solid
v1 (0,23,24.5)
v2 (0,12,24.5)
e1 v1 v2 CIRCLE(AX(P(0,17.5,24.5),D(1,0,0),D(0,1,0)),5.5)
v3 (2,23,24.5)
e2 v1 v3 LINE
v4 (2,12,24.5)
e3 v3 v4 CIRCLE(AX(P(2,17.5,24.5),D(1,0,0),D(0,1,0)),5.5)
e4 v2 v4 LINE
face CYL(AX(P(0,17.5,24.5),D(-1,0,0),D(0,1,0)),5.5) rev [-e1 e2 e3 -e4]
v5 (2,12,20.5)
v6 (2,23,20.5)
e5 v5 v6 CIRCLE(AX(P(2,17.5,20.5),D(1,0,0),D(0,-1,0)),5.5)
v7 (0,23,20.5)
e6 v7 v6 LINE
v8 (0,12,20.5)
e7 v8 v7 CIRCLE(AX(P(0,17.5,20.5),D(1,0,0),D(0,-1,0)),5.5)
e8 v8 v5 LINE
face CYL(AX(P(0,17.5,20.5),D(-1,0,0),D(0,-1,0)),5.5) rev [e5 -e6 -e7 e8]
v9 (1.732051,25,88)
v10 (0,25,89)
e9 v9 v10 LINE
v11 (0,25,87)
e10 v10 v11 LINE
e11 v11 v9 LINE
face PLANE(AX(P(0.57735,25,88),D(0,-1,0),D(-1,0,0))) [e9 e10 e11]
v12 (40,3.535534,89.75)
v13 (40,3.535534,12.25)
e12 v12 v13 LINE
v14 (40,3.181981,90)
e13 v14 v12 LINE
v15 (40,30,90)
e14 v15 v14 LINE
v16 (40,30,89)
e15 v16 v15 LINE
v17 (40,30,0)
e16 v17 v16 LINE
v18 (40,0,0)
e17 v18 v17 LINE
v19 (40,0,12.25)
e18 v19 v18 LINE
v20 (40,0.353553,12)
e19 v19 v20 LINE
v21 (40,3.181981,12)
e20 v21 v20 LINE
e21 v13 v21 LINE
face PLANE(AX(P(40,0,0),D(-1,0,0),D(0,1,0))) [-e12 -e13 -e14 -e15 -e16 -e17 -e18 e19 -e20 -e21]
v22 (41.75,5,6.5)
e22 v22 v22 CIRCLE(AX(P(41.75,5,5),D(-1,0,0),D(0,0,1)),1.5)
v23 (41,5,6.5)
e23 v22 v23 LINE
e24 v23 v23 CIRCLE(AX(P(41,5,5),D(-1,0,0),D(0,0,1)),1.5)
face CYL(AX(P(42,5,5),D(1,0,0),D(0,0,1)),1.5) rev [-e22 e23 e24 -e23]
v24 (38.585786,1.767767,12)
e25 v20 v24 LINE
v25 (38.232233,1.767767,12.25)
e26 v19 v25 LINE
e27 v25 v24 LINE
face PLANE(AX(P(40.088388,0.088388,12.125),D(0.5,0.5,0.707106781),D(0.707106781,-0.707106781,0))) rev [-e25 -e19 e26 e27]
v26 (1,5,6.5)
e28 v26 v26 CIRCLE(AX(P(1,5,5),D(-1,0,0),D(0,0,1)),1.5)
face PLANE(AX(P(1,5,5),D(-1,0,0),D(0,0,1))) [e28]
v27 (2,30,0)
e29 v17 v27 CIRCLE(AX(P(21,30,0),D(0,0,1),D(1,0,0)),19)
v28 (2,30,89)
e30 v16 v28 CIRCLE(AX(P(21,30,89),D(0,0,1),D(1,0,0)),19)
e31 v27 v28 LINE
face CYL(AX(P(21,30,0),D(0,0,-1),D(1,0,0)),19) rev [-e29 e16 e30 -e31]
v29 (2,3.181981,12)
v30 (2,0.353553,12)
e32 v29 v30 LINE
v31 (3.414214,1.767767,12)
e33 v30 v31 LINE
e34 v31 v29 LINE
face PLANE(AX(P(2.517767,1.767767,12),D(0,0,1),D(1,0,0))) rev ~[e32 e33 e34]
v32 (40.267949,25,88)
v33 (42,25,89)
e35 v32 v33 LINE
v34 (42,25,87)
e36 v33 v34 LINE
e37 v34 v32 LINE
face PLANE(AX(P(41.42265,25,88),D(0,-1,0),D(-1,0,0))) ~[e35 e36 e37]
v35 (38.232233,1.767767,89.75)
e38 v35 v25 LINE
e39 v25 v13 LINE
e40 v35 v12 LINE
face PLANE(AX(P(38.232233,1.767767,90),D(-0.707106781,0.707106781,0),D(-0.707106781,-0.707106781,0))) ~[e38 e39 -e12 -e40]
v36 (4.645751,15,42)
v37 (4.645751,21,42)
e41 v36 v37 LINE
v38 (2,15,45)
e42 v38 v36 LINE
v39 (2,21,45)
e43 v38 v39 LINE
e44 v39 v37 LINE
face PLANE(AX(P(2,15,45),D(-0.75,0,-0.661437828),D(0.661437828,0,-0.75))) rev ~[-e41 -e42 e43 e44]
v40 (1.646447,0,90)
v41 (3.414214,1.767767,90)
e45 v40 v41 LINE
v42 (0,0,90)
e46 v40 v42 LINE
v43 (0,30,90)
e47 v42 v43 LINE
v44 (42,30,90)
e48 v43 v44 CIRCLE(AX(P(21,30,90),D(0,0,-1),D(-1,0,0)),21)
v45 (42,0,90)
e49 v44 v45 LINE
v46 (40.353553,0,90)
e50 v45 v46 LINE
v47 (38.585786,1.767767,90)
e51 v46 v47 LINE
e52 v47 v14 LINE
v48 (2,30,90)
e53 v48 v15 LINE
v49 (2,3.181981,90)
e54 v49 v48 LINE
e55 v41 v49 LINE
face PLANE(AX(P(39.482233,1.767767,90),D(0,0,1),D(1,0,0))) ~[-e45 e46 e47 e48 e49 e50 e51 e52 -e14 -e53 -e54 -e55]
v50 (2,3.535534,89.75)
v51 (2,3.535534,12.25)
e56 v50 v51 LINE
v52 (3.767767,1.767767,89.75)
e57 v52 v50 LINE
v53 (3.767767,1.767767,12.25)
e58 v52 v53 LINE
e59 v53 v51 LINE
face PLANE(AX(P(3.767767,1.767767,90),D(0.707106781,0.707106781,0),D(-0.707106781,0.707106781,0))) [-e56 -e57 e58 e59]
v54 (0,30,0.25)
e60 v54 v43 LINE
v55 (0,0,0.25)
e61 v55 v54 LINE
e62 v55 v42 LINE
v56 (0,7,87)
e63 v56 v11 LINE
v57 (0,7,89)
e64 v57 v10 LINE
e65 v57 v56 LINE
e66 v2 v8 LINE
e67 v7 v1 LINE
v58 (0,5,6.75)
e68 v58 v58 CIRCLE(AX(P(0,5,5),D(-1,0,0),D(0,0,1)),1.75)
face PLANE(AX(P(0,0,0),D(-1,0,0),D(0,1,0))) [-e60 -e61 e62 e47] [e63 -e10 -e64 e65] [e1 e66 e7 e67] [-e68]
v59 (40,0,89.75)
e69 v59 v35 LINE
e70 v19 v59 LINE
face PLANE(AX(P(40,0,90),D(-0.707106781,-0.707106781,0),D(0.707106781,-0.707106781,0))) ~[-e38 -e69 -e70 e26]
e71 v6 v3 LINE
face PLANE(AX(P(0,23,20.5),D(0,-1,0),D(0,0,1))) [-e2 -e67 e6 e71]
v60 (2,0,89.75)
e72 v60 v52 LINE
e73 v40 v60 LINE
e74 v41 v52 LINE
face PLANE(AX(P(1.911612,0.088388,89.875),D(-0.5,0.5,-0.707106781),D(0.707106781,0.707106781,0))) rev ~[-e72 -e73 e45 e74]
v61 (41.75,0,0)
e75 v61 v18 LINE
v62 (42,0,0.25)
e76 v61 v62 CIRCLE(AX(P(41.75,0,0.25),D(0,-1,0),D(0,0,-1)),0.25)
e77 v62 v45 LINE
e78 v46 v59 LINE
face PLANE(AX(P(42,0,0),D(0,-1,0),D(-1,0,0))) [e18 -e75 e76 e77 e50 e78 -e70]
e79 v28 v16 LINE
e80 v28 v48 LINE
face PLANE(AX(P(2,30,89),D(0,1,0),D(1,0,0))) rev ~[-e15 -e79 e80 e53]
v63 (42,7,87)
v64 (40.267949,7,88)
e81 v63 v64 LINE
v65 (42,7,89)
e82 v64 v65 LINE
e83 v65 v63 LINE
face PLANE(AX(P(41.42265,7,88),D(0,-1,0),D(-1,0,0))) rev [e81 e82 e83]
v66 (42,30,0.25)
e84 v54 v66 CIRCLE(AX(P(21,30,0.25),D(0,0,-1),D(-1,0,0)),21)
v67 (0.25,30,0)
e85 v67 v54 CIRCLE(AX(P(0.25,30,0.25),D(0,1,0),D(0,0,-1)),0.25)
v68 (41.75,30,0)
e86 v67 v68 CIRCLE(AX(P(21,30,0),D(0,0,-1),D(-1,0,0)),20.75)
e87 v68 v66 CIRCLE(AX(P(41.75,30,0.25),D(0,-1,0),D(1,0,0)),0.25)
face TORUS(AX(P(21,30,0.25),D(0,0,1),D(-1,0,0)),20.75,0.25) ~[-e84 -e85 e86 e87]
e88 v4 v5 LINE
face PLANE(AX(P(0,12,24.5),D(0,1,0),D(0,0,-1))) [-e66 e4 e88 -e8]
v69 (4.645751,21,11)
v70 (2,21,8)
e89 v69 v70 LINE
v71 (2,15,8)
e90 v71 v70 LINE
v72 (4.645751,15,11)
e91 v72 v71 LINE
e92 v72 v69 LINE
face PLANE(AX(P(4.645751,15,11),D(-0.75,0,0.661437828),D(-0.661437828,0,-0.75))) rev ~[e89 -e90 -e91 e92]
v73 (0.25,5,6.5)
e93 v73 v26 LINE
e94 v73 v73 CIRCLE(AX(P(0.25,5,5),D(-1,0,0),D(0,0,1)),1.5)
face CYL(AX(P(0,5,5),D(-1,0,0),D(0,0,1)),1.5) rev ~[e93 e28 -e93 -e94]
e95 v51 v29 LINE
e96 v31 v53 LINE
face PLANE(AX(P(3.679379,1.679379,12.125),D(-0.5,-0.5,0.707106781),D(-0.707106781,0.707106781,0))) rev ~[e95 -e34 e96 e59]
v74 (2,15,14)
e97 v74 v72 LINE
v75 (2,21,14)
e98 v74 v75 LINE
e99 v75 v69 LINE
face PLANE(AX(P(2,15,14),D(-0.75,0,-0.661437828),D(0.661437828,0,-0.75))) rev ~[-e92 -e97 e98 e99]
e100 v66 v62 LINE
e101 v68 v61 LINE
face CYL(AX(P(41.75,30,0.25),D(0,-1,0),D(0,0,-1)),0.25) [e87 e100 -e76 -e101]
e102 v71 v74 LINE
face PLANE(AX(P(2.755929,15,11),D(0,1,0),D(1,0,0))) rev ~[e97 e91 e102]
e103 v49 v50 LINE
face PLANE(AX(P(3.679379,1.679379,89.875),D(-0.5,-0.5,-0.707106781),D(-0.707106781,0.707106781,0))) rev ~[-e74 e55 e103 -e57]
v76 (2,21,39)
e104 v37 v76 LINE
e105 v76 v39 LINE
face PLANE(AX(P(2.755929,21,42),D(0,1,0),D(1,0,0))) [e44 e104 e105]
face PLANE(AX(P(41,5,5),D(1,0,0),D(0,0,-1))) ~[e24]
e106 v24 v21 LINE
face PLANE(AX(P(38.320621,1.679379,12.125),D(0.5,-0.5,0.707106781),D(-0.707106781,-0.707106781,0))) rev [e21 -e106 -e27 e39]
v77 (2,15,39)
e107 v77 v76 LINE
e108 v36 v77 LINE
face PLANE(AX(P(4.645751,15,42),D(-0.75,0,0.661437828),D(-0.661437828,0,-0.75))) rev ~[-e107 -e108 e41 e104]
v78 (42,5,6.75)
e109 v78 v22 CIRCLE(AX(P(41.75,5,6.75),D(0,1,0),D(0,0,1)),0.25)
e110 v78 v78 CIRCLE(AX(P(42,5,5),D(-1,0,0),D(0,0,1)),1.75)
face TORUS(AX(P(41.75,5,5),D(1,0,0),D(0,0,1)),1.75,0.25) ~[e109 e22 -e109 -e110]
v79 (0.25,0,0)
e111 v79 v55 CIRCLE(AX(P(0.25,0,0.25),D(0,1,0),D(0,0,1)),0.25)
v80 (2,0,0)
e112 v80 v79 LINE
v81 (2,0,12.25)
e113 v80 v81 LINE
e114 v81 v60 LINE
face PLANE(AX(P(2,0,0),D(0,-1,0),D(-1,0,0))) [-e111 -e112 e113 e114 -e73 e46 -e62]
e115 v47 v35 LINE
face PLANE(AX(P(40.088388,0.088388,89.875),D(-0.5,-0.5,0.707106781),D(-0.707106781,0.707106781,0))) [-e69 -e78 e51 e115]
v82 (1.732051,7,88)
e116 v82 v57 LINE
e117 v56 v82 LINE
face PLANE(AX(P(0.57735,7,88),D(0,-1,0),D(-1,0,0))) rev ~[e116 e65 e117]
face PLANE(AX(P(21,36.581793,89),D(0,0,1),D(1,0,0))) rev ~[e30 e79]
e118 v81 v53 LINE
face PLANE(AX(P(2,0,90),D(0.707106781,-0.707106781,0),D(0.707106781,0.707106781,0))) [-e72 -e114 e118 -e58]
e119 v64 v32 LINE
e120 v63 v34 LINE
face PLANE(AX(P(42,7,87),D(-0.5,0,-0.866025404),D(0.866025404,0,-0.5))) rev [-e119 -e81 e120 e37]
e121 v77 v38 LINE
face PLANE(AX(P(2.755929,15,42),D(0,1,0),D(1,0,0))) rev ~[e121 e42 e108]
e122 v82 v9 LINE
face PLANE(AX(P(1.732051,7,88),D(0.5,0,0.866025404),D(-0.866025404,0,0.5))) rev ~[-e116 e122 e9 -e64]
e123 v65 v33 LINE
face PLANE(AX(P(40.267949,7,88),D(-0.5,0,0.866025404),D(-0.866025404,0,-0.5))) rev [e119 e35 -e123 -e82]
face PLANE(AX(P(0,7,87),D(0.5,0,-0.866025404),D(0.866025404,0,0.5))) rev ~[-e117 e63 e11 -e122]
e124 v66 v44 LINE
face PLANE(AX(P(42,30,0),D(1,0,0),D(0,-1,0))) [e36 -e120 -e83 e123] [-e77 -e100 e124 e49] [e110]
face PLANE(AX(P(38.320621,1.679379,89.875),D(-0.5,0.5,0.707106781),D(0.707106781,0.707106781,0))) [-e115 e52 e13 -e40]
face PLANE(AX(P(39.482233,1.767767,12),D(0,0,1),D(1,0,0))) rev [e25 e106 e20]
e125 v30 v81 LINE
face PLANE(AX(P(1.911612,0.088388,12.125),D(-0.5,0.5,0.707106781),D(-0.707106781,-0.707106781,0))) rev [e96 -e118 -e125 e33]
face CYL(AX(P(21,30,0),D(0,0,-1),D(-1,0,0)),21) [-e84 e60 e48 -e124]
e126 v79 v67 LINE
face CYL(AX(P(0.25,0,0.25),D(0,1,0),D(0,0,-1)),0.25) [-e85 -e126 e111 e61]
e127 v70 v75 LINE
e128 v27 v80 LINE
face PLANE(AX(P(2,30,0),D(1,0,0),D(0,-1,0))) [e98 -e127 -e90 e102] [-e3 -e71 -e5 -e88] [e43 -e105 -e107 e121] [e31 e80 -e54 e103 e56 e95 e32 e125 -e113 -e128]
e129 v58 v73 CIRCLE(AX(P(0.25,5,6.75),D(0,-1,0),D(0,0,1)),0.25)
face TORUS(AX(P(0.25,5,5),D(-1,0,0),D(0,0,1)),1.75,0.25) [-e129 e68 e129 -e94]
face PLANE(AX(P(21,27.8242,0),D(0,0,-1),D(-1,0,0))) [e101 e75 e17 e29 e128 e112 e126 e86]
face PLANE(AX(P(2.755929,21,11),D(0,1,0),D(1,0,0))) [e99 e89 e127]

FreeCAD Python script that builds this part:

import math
import FreeCAD as App
import Part
import Sketcher

V = App.Vector
Q = App.Units.Quantity


def edges_at(feature, points):
    """Names of the edges that pass closest to the given points."""
    edges = feature.Shape.Edges
    near = lambda p: min(range(len(edges)), key=lambda i: edges[i].distToShape(Part.Vertex(*p))[0])
    return sorted({f"Edge{near(p) + 1}" for p in points})

doc = App.newDocument("Part")
params = doc.addObject("Spreadsheet::Sheet", "Params")
for row, (alias, value) in enumerate([
    ("sketch1_radius", "19 mm"),
    ("sketch1_radius2", "21 mm"),
    ("sketch1_height", "30 mm"),
    ("pad1_length", "90 mm"),
    ("sketch2_radius", "19 mm"),
    ("pad2_length", "1 mm"),
    ("sketch3_radius", "5.5 mm"),
    ("sketch3_height", "4 mm"),
    ("pocket1_length", "2 mm"),
    ("sketch4_diameter", "3 mm"),
    ("pocket2_length", "1 mm"),
    ("sketch5_height", "2 mm"),
    ("pocket3_length", "18 mm"),
    ("sketch6_length", "2.5 mm"),
    ("pad3_length", "78 mm"),
    ("sketch7_height", "6 mm"),
    ("sketch7_length", "4 mm"),
    ("pad4_length", "6 mm"),
    ("fillet_radius", "0.25 mm"),
    ("chamfer_size", "0.25 mm"),
    ("fillet2_radius", "0.25 mm"),
    ("chamfer2_size", "0.25 mm"),
], start=1):
    params.set(f"A{row}", alias)
    params.set(f"B{row}", "=" + value)
    params.setAlias(f"B{row}", alias)

body = doc.addObject("PartDesign::Body", "Body")

# Sketch on XY plane
sketch1 = body.newObject("Sketcher::SketchObject", "Sketch")
sketch1.AttachmentSupport = (doc.getObject("XY_Plane"), [""])
sketch1.MapMode = "FlatFace"
sketch1.addGeometry([
    Part.LineSegment(V(0, 30, 0), V(0, 0, 0)),  # 0
    Part.LineSegment(V(0, 0, 0), V(2, 0, 0)),  # 1
    Part.LineSegment(V(2, 0, 0), V(2, 30, 0)),  # 2
    Part.ArcOfCircle(Part.Circle(V(21, 30, 0), V(0, 0, 1), 19), math.radians(0), math.radians(180)),  # 3
    Part.LineSegment(V(40, 30, 0), V(40, 0, 0)),  # 4
    Part.LineSegment(V(40, 0, 0), V(42, 0, 0)),  # 5
    Part.LineSegment(V(42, 0, 0), V(42, 30, 0)),  # 6
    Part.ArcOfCircle(Part.Circle(V(21, 30, 0), V(0, 0, 1), 21), math.radians(0), math.radians(180)),  # 7
], False)
sketch1.addConstraint([
    Sketcher.Constraint("Coincident", 0, 2, 1, 1),
    Sketcher.Constraint("Coincident", 1, 2, 2, 1),
    Sketcher.Constraint("Tangent", 2, 2, 3, 2),
    Sketcher.Constraint("Tangent", 3, 1, 4, 1),
    Sketcher.Constraint("Coincident", 4, 2, 5, 1),
    Sketcher.Constraint("Coincident", 5, 2, 6, 1),
    Sketcher.Constraint("Tangent", 6, 2, 7, 1),
    Sketcher.Constraint("Tangent", 7, 2, 0, 1),
    Sketcher.Constraint("Vertical", 0),
    Sketcher.Constraint("Horizontal", 1),
    Sketcher.Constraint("Vertical", 2),
    Sketcher.Constraint("Vertical", 4),
    Sketcher.Constraint("Horizontal", 5),
    Sketcher.Constraint("Vertical", 6),
    Sketcher.Constraint("Coincident", 0, 2, -1, 1),
    Sketcher.Constraint("Coincident", 7, 3, 3, 3),
    Sketcher.Constraint("PointOnObject", 4, 2, -1),
    Sketcher.Constraint("Radius", 3, Q("19 mm")),
    Sketcher.Constraint("Radius", 7, Q("21 mm")),
    Sketcher.Constraint("DistanceY", 0, 2, 0, 1, Q("30 mm")),
])
sketch1.setExpression("Constraints[17]", "Params.sketch1_radius")
sketch1.setExpression("Constraints[18]", "Params.sketch1_radius2")
sketch1.setExpression("Constraints[19]", "Params.sketch1_height")
pad1 = body.newObject("PartDesign::Pad", "Pad")
pad1.Profile = sketch1
pad1.setExpression("Length", "Params.pad1_length")

# Sketch on XY plane
sketch2 = body.newObject("Sketcher::SketchObject", "Sketch001")
sketch2.AttachmentSupport = (doc.getObject("XY_Plane"), [""])
sketch2.MapMode = "FlatFace"
sketch2.AttachmentOffset = App.Placement(V(0, 0, 89), App.Rotation())
sketch2.addGeometry([
    Part.LineSegment(V(2, 30, 0), V(40, 30, 0)),
    Part.ArcOfCircle(Part.Circle(V(21, 30, 0), V(0, 0, 1), 19), math.radians(0), math.radians(180)),
], False)
sketch2.addConstraint([
    Sketcher.Constraint("Coincident", 0, 1, 1, 2),
    Sketcher.Constraint("Coincident", 1, 1, 0, 2),
    Sketcher.Constraint("Horizontal", 0),
    Sketcher.Constraint("Horizontal", 1, 3, 0, 1),
    Sketcher.Constraint("Radius", 1, Q("19 mm")),
    Sketcher.Constraint("DistanceX", -1, 1, 1, 3, Q("21 mm")),
    Sketcher.Constraint("DistanceY", -1, 1, 1, 3, Q("30 mm")),
])
sketch2.setExpression("Constraints[4]", "Params.sketch2_radius")
pad2 = body.newObject("PartDesign::Pad", "Pad001")
pad2.Profile = sketch2
pad2.setExpression("Length", "Params.pad2_length")

# Sketch on YZ plane
sketch3 = body.newObject("Sketcher::SketchObject", "Sketch002")
sketch3.AttachmentSupport = (doc.getObject("YZ_Plane"), [""])
sketch3.MapMode = "FlatFace"
sketch3.addGeometry([
    Part.LineSegment(V(23, 24.5, 0), V(23, 20.5, 0)),
    Part.ArcOfCircle(Part.Circle(V(17.5, 20.5, 0), V(0, 0, 1), 5.5), math.radians(180), math.radians(360)),
    Part.LineSegment(V(12, 20.5, 0), V(12, 24.5, 0)),
    Part.ArcOfCircle(Part.Circle(V(17.5, 24.5, 0), V(0, 0, 1), 5.5), math.radians(0), math.radians(180)),
], False)
sketch3.addConstraint([
    Sketcher.Constraint("Tangent", 0, 2, 1, 2),
    Sketcher.Constraint("Tangent", 1, 1, 2, 1),
    Sketcher.Constraint("Tangent", 2, 2, 3, 2),
    Sketcher.Constraint("Tangent", 3, 1, 0, 1),
    Sketcher.Constraint("Vertical", 0),
    Sketcher.Constraint("Vertical", 2),
    Sketcher.Constraint("Radius", 1, Q("5.5 mm")),
    Sketcher.Constraint("DistanceY", 0, 2, 0, 1, Q("4 mm")),
    Sketcher.Constraint("DistanceX", -1, 1, 0, 2, Q("23 mm")),
    Sketcher.Constraint("DistanceY", -1, 1, 1, 3, Q("20.5 mm")),
])
sketch3.setExpression("Constraints[6]", "Params.sketch3_radius")
sketch3.setExpression("Constraints[7]", "Params.sketch3_height")
pocket1 = body.newObject("PartDesign::Pocket", "Pocket")
pocket1.Profile = sketch3
pocket1.setExpression("Length", "Params.pocket1_length")
pocket1.Reversed = True

# Sketch on YZ plane
sketch4 = body.newObject("Sketcher::SketchObject", "Sketch003")
sketch4.AttachmentSupport = (doc.getObject("YZ_Plane"), [""])
sketch4.MapMode = "FlatFace"
sketch4.addGeometry(Part.Circle(V(5, 5, 0), V(0, 0, 1), 1.5), False)
sketch4.addConstraint([
    Sketcher.Constraint("Diameter", 0, Q("3 mm")),
    Sketcher.Constraint("DistanceX", -1, 1, 0, 3, Q("5 mm")),
    Sketcher.Constraint("DistanceY", -1, 1, 0, 3, Q("5 mm")),
])
sketch4.setExpression("Constraints[0]", "Params.sketch4_diameter")
pocket2 = body.newObject("PartDesign::Pocket", "Pocket001")
pocket2.Profile = sketch4
pocket2.setExpression("Length", "Params.pocket2_length")
pocket2.Reversed = True
doc.recompute()

datumplane = body.newObject("PartDesign::Plane", "DatumPlane")
datumplane.AttachmentSupport = (doc.getObject("YZ_Plane"), [""])
datumplane.MapMode = "FlatFace"
datumplane.AttachmentOffset = App.Placement(V(0, 0, 21), App.Rotation())
mirrored = body.newObject("PartDesign::Mirrored", "Mirrored")
mirrored.Originals = [pocket2]
mirrored.MirrorPlane = (datumplane, [""])
body.Tip = mirrored

# Sketch on XZ plane
sketch5 = body.newObject("Sketcher::SketchObject", "Sketch004")
sketch5.AttachmentSupport = (doc.getObject("XZ_Plane"), [""])
sketch5.MapMode = "FlatFace"
sketch5.AttachmentOffset = App.Placement(V(0, 0, -7), App.Rotation())
sketch5.addGeometry([
    Part.LineSegment(V(0, 89, 0), V(0, 87, 0)),
    Part.LineSegment(V(0, 87, 0), V(1.7, 88, 0)),
    Part.LineSegment(V(1.7, 88, 0), V(0, 89, 0)),
], False)
sketch5.addConstraint([
    Sketcher.Constraint("Coincident", 0, 2, 1, 1),
    Sketcher.Constraint("Coincident", 1, 2, 2, 1),
    Sketcher.Constraint("Coincident", 2, 2, 0, 1),
    Sketcher.Constraint("Vertical", 0),
    Sketcher.Constraint("PointOnObject", 0, 2, -2),
    Sketcher.Constraint("Equal", 1, 2),
    Sketcher.Constraint("DistanceY", 0, 2, 0, 1, Q("2 mm")),
    Sketcher.Constraint("Angle", 1, Q("30 deg")),
    Sketcher.Constraint("DistanceY", -1, 1, 0, 2, Q("87 mm")),
])
sketch5.setExpression("Constraints[6]", "Params.sketch5_height")
pocket3 = body.newObject("PartDesign::Pocket", "Pocket002")
pocket3.Profile = sketch5
pocket3.setExpression("Length", "Params.pocket3_length")
doc.recompute()

datumplane2 = body.newObject("PartDesign::Plane", "DatumPlane001")
datumplane2.AttachmentSupport = (doc.getObject("YZ_Plane"), [""])
datumplane2.MapMode = "FlatFace"
datumplane2.AttachmentOffset = App.Placement(V(0, 0, 21), App.Rotation())
mirrored2 = body.newObject("PartDesign::Mirrored", "Mirrored001")
mirrored2.Originals = [pocket3]
mirrored2.MirrorPlane = (datumplane2, [""])
body.Tip = mirrored2

# Sketch on XY plane
sketch6 = body.newObject("Sketcher::SketchObject", "Sketch005")
sketch6.AttachmentSupport = (doc.getObject("XY_Plane"), [""])
sketch6.MapMode = "FlatFace"
sketch6.AttachmentOffset = App.Placement(V(0, 0, 90), App.Rotation())
sketch6.addGeometry([
    Part.LineSegment(V(2, 0, 0), V(3.8, 1.8, 0)),
    Part.LineSegment(V(3.8, 1.8, 0), V(2, 3.5, 0)),
    Part.LineSegment(V(2, 3.5, 0), V(2, 0, 0)),
], False)
sketch6.addConstraint([
    Sketcher.Constraint("Coincident", 0, 2, 1, 1),
    Sketcher.Constraint("Coincident", 1, 2, 2, 1),
    Sketcher.Constraint("Coincident", 2, 2, 0, 1),
    Sketcher.Constraint("Vertical", 2),
    Sketcher.Constraint("PointOnObject", 2, 2, -1),
    Sketcher.Constraint("Perpendicular", 0, 1),
    Sketcher.Constraint("Equal", 0, 1),
    Sketcher.Constraint("DistanceX", -1, 1, 1, 2, Q("2 mm")),
    Sketcher.Constraint("Distance", 0, Q("2.5 mm")),
])
sketch6.setExpression("Constraints[8]", "Params.sketch6_length")
pad3 = body.newObject("PartDesign::Pad", "Pad002")
pad3.Profile = sketch6
pad3.setExpression("Length", "Params.pad3_length")
pad3.Reversed = True
doc.recompute()

datumplane3 = body.newObject("PartDesign::Plane", "DatumPlane002")
datumplane3.AttachmentSupport = (doc.getObject("YZ_Plane"), [""])
datumplane3.MapMode = "FlatFace"
datumplane3.AttachmentOffset = App.Placement(V(0, 0, 21), App.Rotation())
mirrored3 = body.newObject("PartDesign::Mirrored", "Mirrored002")
mirrored3.Originals = [pad3]
mirrored3.MirrorPlane = (datumplane3, [""])
body.Tip = mirrored3

# Sketch on XZ plane
sketch7 = body.newObject("Sketcher::SketchObject", "Sketch006")
sketch7.AttachmentSupport = (doc.getObject("XZ_Plane"), [""])
sketch7.MapMode = "FlatFace"
sketch7.AttachmentOffset = App.Placement(V(0, 0, -15), App.Rotation())
sketch7.addGeometry([
    Part.LineSegment(V(2, 14, 0), V(2, 8, 0)),  # 0
    Part.LineSegment(V(2, 8, 0), V(4.6, 11, 0)),  # 1
    Part.LineSegment(V(4.6, 11, 0), V(2, 14, 0)),  # 2
    Part.LineSegment(V(2, 45, 0), V(2, 39, 0)),  # 3
    Part.LineSegment(V(2, 39, 0), V(4.6, 42, 0)),  # 4
    Part.LineSegment(V(4.6, 42, 0), V(2, 45, 0)),  # 5
], False)
sketch7.addConstraint([
    Sketcher.Constraint("Coincident", 0, 2, 1, 1),
    Sketcher.Constraint("Coincident", 1, 2, 2, 1),
    Sketcher.Constraint("Coincident", 2, 2, 0, 1),
    Sketcher.Constraint("Coincident", 3, 2, 4, 1),
    Sketcher.Constraint("Coincident", 4, 2, 5, 1),
    Sketcher.Constraint("Coincident", 5, 2, 3, 1),
    Sketcher.Constraint("Vertical", 0),
    Sketcher.Constraint("Vertical", 3),
    Sketcher.Constraint("Parallel", 1, 4),
    Sketcher.Constraint("Parallel", 2, 5),
    Sketcher.Constraint("Vertical", 2, 2, 3, 2),
    Sketcher.Constraint("Vertical", 1, 2, 4, 2),
    Sketcher.Constraint("Equal", 1, 2),
    Sketcher.Constraint("DistanceY", 0, 2, 0, 1, Q("6 mm")),
    Sketcher.Constraint("Distance", 1, Q("4 mm")),
    Sketcher.Constraint("DistanceX", -1, 1, 0, 2, Q("2 mm")),
    Sketcher.Constraint("DistanceY", -1, 1, 0, 2, Q("8 mm")),
    Sketcher.Constraint("DistanceY", -1, 1, 3, 2, Q("39 mm")),
])
sketch7.setExpression("Constraints[13]", "Params.sketch7_height")
sketch7.setExpression("Constraints[14]", "Params.sketch7_length")
pad4 = body.newObject("PartDesign::Pad", "Pad003")
pad4.Profile = sketch7
pad4.setExpression("Length", "Params.pad4_length")
pad4.Reversed = True
doc.recompute()

fillet = body.newObject("PartDesign::Fillet", "Fillet")
fillet.Base = (pad4, edges_at(pad4, [(0, 5, 3.5), (42, 5, 3.5)]))
fillet.setExpression("Radius", "Params.fillet_radius")
doc.recompute()

chamfer = body.newObject("PartDesign::Chamfer", "Chamfer")
chamfer.Base = (fillet, edges_at(fillet, [
    (2.884, 2.652, 12),
    (2.884, 2.652, 90),
    (2.884, 0.884, 90),
    (39.116, 2.652, 90),
    (39.116, 0.884, 90),
    (39.116, 2.652, 12),
]))
chamfer.setExpression("Size", "Params.chamfer_size")
doc.recompute()

fillet2 = body.newObject("PartDesign::Fillet", "Fillet001")
fillet2.Base = (chamfer, edges_at(chamfer, [(0, 15, 0), (21, 51, 0), (42, 15, 0)]))
fillet2.setExpression("Radius", "Params.fillet2_radius")
doc.recompute()

chamfer2 = body.newObject("PartDesign::Chamfer", "Chamfer001")
chamfer2.Base = (fillet2, edges_at(fillet2, [(2.795, 0.795, 12), (39.205, 0.795, 12)]))
chamfer2.setExpression("Size", "Params.chamfer2_size")

doc.recompute()
